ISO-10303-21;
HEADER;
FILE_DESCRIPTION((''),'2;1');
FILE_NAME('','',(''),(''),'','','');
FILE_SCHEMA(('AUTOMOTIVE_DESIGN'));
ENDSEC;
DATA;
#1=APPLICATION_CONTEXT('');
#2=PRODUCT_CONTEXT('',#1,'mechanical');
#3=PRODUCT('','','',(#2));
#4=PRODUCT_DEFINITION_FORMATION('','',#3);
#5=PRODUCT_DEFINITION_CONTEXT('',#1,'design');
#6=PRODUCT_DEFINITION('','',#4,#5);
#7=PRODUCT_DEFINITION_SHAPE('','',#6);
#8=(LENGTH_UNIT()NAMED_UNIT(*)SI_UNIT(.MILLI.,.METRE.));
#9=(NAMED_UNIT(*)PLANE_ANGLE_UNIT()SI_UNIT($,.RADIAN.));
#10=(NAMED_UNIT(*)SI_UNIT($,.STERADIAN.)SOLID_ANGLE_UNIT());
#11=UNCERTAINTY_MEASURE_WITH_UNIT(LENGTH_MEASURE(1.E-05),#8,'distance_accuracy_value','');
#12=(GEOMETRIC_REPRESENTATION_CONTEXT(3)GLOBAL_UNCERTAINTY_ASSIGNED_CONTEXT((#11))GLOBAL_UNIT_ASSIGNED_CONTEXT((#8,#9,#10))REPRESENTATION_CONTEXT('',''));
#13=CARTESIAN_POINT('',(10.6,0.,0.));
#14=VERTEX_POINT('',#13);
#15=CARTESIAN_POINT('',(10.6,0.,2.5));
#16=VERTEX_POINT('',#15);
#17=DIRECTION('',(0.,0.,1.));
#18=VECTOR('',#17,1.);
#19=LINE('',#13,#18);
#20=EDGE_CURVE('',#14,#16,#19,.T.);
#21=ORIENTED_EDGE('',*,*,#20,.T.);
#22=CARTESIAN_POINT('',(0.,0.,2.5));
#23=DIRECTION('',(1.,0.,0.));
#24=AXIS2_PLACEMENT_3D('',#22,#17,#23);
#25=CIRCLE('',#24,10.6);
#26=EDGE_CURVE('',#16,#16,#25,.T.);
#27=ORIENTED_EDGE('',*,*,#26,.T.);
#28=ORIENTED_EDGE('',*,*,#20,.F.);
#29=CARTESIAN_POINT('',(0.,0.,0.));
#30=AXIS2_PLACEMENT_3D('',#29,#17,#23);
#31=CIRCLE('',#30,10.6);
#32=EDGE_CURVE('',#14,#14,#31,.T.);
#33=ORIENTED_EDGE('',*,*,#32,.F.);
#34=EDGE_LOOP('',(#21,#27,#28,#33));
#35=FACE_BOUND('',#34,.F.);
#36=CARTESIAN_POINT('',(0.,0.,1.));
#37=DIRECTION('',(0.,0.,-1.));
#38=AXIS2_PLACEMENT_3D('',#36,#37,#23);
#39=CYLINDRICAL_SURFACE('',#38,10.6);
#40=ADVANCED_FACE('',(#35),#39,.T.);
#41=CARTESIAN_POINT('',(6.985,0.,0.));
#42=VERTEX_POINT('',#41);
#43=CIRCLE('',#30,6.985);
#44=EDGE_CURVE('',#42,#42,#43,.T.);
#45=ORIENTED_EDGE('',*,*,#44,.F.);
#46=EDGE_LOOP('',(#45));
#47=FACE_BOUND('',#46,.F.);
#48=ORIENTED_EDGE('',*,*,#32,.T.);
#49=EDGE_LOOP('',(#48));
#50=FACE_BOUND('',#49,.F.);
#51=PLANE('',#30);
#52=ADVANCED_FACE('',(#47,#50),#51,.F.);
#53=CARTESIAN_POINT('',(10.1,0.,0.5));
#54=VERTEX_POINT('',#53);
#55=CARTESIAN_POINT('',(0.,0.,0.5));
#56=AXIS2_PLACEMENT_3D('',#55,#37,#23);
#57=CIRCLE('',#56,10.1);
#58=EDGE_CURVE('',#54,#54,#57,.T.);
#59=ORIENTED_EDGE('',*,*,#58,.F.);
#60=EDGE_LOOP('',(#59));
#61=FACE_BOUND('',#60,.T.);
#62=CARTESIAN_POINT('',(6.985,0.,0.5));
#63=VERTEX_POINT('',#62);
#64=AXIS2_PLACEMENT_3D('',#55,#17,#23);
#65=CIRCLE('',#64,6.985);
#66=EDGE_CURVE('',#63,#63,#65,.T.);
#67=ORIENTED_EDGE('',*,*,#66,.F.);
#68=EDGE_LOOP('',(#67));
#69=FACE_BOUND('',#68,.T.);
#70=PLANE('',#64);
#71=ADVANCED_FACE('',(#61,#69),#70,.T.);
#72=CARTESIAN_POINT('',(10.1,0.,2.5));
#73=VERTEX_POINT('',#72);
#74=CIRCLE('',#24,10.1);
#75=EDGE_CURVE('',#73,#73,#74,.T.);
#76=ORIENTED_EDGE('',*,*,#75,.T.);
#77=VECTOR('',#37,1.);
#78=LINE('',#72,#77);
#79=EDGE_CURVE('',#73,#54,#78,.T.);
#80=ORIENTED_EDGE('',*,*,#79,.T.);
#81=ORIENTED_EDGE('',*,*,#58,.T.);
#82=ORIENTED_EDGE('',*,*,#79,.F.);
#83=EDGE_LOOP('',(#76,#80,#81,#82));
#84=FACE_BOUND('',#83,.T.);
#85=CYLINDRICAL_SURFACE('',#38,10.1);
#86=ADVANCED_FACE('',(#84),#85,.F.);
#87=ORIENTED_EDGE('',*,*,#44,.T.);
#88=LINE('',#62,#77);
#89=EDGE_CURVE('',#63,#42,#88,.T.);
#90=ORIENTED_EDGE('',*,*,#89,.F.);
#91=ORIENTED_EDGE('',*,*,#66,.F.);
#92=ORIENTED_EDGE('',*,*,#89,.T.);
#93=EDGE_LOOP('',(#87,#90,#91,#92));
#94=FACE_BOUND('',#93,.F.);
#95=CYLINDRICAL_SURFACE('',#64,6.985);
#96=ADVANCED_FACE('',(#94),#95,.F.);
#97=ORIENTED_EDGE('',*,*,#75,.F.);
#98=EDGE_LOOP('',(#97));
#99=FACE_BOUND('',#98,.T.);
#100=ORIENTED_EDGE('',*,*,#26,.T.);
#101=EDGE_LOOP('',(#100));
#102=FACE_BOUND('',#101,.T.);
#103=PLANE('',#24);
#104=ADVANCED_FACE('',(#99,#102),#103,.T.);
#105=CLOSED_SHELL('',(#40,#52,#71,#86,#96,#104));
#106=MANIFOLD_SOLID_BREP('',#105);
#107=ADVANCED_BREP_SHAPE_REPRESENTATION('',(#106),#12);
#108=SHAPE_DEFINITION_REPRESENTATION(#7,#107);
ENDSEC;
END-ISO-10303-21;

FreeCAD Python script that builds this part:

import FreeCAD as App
import Part
import Sketcher


def faces_at(feature, points):
    """Names of the faces that lie closest to the given points."""
    faces = feature.Shape.Faces
    near = lambda p: min(range(len(faces)), key=lambda i: faces[i].distToShape(Part.Vertex(*p))[0])
    return sorted({f"Face{near(p) + 1}" for p in points})

doc = App.newDocument("Part")
body = doc.addObject("PartDesign::Body", "Body")

# Sketch on XY plane
sketch1 = doc.addObject("Sketcher::SketchObject", "Sketch")
body.addObject(sketch1)
sketch1.AttachmentSupport = (doc.XY_Plane, [""])
sketch1.MapMode = "FlatFace"
sketch1.addGeometry(Part.Circle(App.Vector(0, 0, 0), App.Vector(0, 0, 1), 10.6), False)
sketch1.addConstraint([
    Sketcher.Constraint("Coincident", 0, 3, -1, 1),
    Sketcher.Constraint("Diameter", 0, 21.2),
])
pad1 = doc.addObject("PartDesign::Pad", "Pad")
body.addObject(pad1)
pad1.Profile = sketch1
pad1.Length = 1
doc.recompute()

thickness = doc.addObject("PartDesign::Thickness", "Thickness")
body.addObject(thickness)
thickness.Base = (pad1, faces_at(pad1, [(0, 0, 1)]))
thickness.Value = 0.5
thickness.Reversed = True
thickness.Join = "Arc"

# Sketch on XY plane
sketch2 = doc.addObject("Sketcher::SketchObject", "Sketch001")
body.addObject(sketch2)
sketch2.AttachmentSupport = (doc.XY_Plane, [""])
sketch2.MapMode = "FlatFace"
sketch2.AttachmentOffset = App.Placement(App.Vector(0, 0, 0.5), App.Rotation())
sketch2.addGeometry(Part.Circle(App.Vector(0, 0, 0), App.Vector(0, 0, 1), 6.985), False)
sketch2.addConstraint([
    Sketcher.Constraint("Coincident", 0, 3, -1, 1),
    Sketcher.Constraint("Diameter", 0, 13.97),
])
pocket1 = doc.addObject("PartDesign::Pocket", "Pocket")
body.addObject(pocket1)
pocket1.Profile = sketch2
pocket1.Length = 25

# Sketch on XY plane
sketch3 = doc.addObject("Sketcher::SketchObject", "Sketch002")
body.addObject(sketch3)
sketch3.AttachmentSupport = (doc.XY_Plane, [""])
sketch3.MapMode = "FlatFace"
sketch3.AttachmentOffset = App.Placement(App.Vector(0, 0, 1), App.Rotation())
sketch3.addGeometry([
    Part.Circle(App.Vector(0, 0, 0), App.Vector(0, 0, 1), 10.6),
    Part.Circle(App.Vector(0, 0, 0), App.Vector(0, 0, 1), 10.1),
], False)
sketch3.addConstraint([
    Sketcher.Constraint("Coincident", 0, 3, -1, 1),
    Sketcher.Constraint("Coincident", 1, 3, -1, 1),
    Sketcher.Constraint("Diameter", 0, 21.2),
    Sketcher.Constraint("Diameter", 1, 20.2),
])
pad2 = doc.addObject("PartDesign::Pad", "Pad001")
body.addObject(pad2)
pad2.Profile = sketch3
pad2.Length = 1.5

doc.recompute()
